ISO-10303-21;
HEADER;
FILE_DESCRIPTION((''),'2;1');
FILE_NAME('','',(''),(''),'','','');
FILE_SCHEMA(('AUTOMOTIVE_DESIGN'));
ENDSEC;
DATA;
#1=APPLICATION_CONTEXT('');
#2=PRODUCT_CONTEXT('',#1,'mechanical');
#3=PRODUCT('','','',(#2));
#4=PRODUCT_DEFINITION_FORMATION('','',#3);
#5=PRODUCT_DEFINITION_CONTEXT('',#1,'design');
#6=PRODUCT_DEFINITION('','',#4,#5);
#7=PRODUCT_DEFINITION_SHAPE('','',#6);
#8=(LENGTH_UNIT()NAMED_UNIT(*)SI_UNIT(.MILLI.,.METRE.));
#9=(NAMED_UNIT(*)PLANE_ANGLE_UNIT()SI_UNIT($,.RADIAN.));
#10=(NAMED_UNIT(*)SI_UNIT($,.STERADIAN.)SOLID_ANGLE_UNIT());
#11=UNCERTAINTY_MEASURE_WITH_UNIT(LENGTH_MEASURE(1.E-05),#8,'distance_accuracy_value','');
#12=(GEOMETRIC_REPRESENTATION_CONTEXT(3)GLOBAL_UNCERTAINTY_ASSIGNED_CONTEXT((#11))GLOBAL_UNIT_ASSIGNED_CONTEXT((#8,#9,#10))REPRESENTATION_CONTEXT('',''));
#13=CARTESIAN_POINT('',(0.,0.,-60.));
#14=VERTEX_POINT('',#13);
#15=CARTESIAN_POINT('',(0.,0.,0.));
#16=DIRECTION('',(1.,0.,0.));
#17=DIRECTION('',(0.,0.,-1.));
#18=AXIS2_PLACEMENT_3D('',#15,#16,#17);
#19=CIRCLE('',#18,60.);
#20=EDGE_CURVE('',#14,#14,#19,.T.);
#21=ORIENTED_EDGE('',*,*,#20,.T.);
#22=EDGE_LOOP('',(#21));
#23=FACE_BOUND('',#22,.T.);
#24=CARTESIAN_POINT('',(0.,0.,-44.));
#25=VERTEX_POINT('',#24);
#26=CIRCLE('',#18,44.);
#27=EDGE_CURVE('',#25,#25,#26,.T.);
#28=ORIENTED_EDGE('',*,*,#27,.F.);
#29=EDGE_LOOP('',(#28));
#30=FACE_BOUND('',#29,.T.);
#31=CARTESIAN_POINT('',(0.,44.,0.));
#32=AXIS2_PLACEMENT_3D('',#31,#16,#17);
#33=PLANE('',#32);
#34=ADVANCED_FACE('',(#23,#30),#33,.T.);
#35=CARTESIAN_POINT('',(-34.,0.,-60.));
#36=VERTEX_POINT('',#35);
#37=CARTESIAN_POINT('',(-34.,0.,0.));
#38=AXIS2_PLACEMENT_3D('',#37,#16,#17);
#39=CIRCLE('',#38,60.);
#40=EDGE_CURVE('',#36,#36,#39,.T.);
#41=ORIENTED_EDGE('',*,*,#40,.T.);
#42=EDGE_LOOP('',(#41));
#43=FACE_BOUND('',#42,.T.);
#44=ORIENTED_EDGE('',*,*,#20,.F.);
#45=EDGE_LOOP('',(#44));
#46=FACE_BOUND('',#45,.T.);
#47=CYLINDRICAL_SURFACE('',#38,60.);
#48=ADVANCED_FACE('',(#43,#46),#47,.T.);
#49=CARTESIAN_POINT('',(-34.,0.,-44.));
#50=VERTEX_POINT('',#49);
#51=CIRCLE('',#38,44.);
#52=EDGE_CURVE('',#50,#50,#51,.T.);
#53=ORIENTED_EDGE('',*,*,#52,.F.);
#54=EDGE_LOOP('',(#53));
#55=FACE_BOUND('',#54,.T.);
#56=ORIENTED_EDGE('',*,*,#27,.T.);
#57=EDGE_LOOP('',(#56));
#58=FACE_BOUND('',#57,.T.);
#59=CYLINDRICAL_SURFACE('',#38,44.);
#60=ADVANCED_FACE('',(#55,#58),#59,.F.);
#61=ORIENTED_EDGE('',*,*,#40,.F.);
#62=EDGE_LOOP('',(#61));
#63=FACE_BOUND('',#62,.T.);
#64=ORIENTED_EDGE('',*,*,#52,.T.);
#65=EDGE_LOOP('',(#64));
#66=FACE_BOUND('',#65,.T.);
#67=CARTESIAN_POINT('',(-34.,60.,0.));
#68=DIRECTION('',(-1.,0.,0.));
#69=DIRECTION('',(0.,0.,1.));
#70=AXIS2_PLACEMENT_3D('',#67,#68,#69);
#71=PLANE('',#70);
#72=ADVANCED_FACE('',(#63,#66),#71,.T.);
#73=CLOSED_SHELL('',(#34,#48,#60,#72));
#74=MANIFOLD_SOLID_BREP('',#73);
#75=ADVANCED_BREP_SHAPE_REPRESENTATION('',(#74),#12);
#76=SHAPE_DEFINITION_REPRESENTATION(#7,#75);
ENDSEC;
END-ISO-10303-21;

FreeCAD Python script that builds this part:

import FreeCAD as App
import Part
import Sketcher

V = App.Vector

doc = App.newDocument("Part")
body = doc.addObject("PartDesign::Body", "Body")

sketch1 = body.newObject("Sketcher::SketchObject", "Sketch")
sketch1.AttachmentSupport = (doc.getObject("XY_Plane"), [""])
sketch1.MapMode = "FlatFace"
sketch1.addGeometry(Part.LineSegment(V(-34, 60, 0), V(-34, 44, 0)), False)
sketch1.addGeometry(Part.LineSegment(V(-34, 44, 0), V(0, 44, 0)), False)
sketch1.addGeometry(Part.LineSegment(V(0, 44, 0), V(0, 60, 0)), False)
sketch1.addGeometry(Part.LineSegment(V(0, 60, 0), V(-34, 60, 0)), False)
sketch1.addConstraint(Sketcher.Constraint("Coincident", 0, 2, 1, 1))
sketch1.addConstraint(Sketcher.Constraint("Coincident", 1, 2, 2, 1))
sketch1.addConstraint(Sketcher.Constraint("Coincident", 2, 2, 3, 1))
sketch1.addConstraint(Sketcher.Constraint("Coincident", 3, 2, 0, 1))
sketch1.addConstraint(Sketcher.Constraint("Vertical", 0))
sketch1.addConstraint(Sketcher.Constraint("Horizontal", 1))
sketch1.addConstraint(Sketcher.Constraint("Vertical", 2))
sketch1.addConstraint(Sketcher.Constraint("Horizontal", 3))
sketch1.addConstraint(Sketcher.Constraint("PointOnObject", 1, 2, -2))
sketch1.addConstraint(Sketcher.Constraint("DistanceX", 1, 1, 1, 2, 34.0))
sketch1.addConstraint(Sketcher.Constraint("DistanceY", 0, 2, 0, 1, 16.0))
sketch1.addConstraint(Sketcher.Constraint("DistanceY", -1, 1, 0, 2, 44.0))
revolution = body.newObject("PartDesign::Revolution", "Revolution")
revolution.Profile = sketch1
revolution.ReferenceAxis = (sketch1, ["H_Axis"])
revolution.Angle = 360

doc.recompute()
